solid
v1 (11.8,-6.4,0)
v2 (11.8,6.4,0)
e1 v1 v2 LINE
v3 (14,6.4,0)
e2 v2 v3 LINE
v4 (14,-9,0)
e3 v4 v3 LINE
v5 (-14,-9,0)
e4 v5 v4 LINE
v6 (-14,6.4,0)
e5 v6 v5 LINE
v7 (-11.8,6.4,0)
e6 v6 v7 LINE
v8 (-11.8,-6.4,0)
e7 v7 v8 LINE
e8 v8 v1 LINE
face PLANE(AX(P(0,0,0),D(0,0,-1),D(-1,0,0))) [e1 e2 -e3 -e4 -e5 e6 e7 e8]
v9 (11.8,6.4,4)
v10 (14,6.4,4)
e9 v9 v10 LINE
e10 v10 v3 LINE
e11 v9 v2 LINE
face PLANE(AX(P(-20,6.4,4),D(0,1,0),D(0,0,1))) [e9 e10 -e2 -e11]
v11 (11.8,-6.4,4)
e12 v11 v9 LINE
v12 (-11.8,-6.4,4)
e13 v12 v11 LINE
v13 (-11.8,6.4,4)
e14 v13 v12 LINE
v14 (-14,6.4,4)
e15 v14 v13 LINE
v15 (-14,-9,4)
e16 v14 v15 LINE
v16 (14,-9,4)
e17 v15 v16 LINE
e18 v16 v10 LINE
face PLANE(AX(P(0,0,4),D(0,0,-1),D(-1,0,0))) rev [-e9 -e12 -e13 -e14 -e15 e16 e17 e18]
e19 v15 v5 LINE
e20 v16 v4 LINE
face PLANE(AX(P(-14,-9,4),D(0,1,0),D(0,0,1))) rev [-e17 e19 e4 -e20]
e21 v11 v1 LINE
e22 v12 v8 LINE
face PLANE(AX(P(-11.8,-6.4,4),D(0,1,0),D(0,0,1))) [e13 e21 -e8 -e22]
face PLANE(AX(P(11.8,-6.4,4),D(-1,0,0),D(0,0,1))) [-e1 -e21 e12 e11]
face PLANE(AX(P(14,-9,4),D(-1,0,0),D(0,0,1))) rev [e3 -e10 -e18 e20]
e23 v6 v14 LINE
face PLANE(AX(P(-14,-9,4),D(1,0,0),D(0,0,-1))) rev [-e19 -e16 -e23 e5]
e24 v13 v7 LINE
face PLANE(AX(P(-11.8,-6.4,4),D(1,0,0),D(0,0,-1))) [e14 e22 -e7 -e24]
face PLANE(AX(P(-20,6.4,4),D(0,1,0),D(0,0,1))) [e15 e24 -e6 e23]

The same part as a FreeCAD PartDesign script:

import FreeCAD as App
import Part
import Sketcher

V = App.Vector
Q = App.Units.Quantity

doc = App.newDocument("Part")
body = doc.addObject("PartDesign::Body", "Body")

# Sketch on XY plane
sketch1 = body.newObject("Sketcher::SketchObject", "Sketch")
sketch1.AttachmentSupport = (doc.getObject("XY_Plane"), [""])
sketch1.MapMode = "FlatFace"
sketch1.addGeometry(Part.LineSegment(V(-14, 9, 0), V(-14, -9, 0)), False)
sketch1.addGeometry(Part.LineSegment(V(-14, -9, 0), V(14, -9, 0)), False)
sketch1.addGeometry(Part.LineSegment(V(14, -9, 0), V(14, 9, 0)), False)
sketch1.addGeometry(Part.LineSegment(V(14, 9, 0), V(-14, 9, 0)), False)
sketch1.addGeometry(Part.LineSegment(V(11.8, -6.4, 0), V(-11.8, -6.4, 0)), False)
sketch1.addGeometry(Part.LineSegment(V(-11.8, -6.4, 0), V(-11.8, 6.4, 0)), False)
sketch1.addGeometry(Part.LineSegment(V(-11.8, 6.4, 0), V(11.8, 6.4, 0)), False)
sketch1.addGeometry(Part.LineSegment(V(11.8, 6.4, 0), V(11.8, -6.4, 0)), False)
sketch1.addConstraint(Sketcher.Constraint("Coincident", 0, 2, 1, 1))
sketch1.addConstraint(Sketcher.Constraint("Coincident", 1, 2, 2, 1))
sketch1.addConstraint(Sketcher.Constraint("Coincident", 2, 2, 3, 1))
sketch1.addConstraint(Sketcher.Constraint("Coincident", 3, 2, 0, 1))
sketch1.addConstraint(Sketcher.Constraint("Coincident", 4, 2, 5, 1))
sketch1.addConstraint(Sketcher.Constraint("Coincident", 5, 2, 6, 1))
sketch1.addConstraint(Sketcher.Constraint("Coincident", 6, 2, 7, 1))
sketch1.addConstraint(Sketcher.Constraint("Coincident", 7, 2, 4, 1))
sketch1.addConstraint(Sketcher.Constraint("Vertical", 0))
sketch1.addConstraint(Sketcher.Constraint("Horizontal", 1))
sketch1.addConstraint(Sketcher.Constraint("Vertical", 2))
sketch1.addConstraint(Sketcher.Constraint("Horizontal", 3))
sketch1.addConstraint(Sketcher.Constraint("Horizontal", 4))
sketch1.addConstraint(Sketcher.Constraint("Vertical", 5))
sketch1.addConstraint(Sketcher.Constraint("Horizontal", 6))
sketch1.addConstraint(Sketcher.Constraint("Vertical", 7))
sketch1.addConstraint(Sketcher.Constraint("Symmetric", 0, 2, 2, 2, -1, 1))
sketch1.addConstraint(Sketcher.Constraint("Symmetric", 4, 2, 6, 2, -1, 1))
sketch1.addConstraint(Sketcher.Constraint("DistanceX", 1, 1, 1, 2, Q("28 mm")))
sketch1.addConstraint(Sketcher.Constraint("DistanceY", 0, 2, 0, 1, Q("18 mm")))
sketch1.addConstraint(Sketcher.Constraint("DistanceX", 4, 2, 4, 1, Q("23.6 mm")))
sketch1.addConstraint(Sketcher.Constraint("DistanceY", 5, 1, 5, 2, Q("12.8 mm")))
pad1 = body.newObject("PartDesign::Pad", "Pad")
pad1.Profile = sketch1
pad1.Length = 4

# Sketch on XY plane
sketch2 = body.newObject("Sketcher::SketchObject", "Sketch001")
sketch2.AttachmentSupport = (doc.getObject("XY_Plane"), [""])
sketch2.MapMode = "FlatFace"
sketch2.addGeometry(Part.LineSegment(V(-20, 16.4, 0), V(-20, 6.4, 0)), False)
sketch2.addGeometry(Part.LineSegment(V(-20, 6.4, 0), V(20, 6.4, 0)), False)
sketch2.addGeometry(Part.LineSegment(V(20, 6.4, 0), V(20, 16.4, 0)), False)
sketch2.addGeometry(Part.LineSegment(V(20, 16.4, 0), V(-20, 16.4, 0)), False)
sketch2.addConstraint(Sketcher.Constraint("Coincident", 0, 2, 1, 1))
sketch2.addConstraint(Sketcher.Constraint("Coincident", 1, 2, 2, 1))
sketch2.addConstraint(Sketcher.Constraint("Coincident", 2, 2, 3, 1))
sketch2.addConstraint(Sketcher.Constraint("Coincident", 3, 2, 0, 1))
sketch2.addConstraint(Sketcher.Constraint("Vertical", 0))
sketch2.addConstraint(Sketcher.Constraint("Horizontal", 1))
sketch2.addConstraint(Sketcher.Constraint("Vertical", 2))
sketch2.addConstraint(Sketcher.Constraint("Horizontal", 3))
sketch2.addConstraint(Sketcher.Constraint("DistanceX", 1, 1, 1, 2, Q("40 mm")))
sketch2.addConstraint(Sketcher.Constraint("DistanceY", 0, 2, 0, 1, Q("10 mm")))
sketch2.addConstraint(Sketcher.Constraint("DistanceX", 0, 2, -1, 1, Q("20 mm")))
sketch2.addConstraint(Sketcher.Constraint("DistanceY", -1, 1, 0, 2, Q("6.4 mm")))
pocket1 = body.newObject("PartDesign::Pocket", "Pocket")
pocket1.Profile = sketch2
pocket1.Type = "ThroughAll"
pocket1.Reversed = True

doc.recompute()
